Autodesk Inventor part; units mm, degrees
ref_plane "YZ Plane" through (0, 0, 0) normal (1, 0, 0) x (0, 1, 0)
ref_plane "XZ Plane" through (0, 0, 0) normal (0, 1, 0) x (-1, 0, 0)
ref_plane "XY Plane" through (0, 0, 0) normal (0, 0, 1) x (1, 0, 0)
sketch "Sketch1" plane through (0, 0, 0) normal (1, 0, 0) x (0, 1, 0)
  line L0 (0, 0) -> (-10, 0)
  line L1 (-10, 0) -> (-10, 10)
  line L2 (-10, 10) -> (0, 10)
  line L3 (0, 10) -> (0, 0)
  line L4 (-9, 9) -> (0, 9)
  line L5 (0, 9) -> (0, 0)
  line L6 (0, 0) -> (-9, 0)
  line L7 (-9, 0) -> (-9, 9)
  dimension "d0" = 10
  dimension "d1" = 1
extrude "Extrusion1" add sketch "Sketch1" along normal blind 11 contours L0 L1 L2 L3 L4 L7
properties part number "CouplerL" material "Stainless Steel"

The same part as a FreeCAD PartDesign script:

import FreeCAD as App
import Part
import Sketcher

V = App.Vector
Q = App.Units.Quantity


def add_polygon(sketch, points):
    """Adds a closed chain of lines whose ends are joined by coincident constraints."""
    first, n = sketch.GeometryCount, len(points)
    for a, b in zip(points, points[1:] + points[:1]):
        sketch.addGeometry(Part.LineSegment(App.Vector(*a, 0), App.Vector(*b, 0)), False)
    for i in range(n):
        sketch.addConstraint(Sketcher.Constraint("Coincident", first + i, 2, first + (i + 1) % n, 1))

doc = App.newDocument("Part")
params = doc.addObject("Spreadsheet::Sheet", "Params")
for row, (alias, value) in enumerate([
    ("sketch1_width", "1 mm"),
    ("sketch1_width2", "10 mm"),
    ("pad1_length", "11 mm"),
], start=1):
    params.set(f"A{row}", alias)
    params.set(f"B{row}", "=" + value)
    params.setAlias(f"B{row}", alias)

body = doc.addObject("PartDesign::Body", "Body")

sketch1 = body.newObject("Sketcher::SketchObject", "Sketch")
sketch1.AttachmentSupport = (doc.getObject("YZ_Plane"), [""])
sketch1.MapMode = "FlatFace"
add_polygon(sketch1, [(-10, 0), (-9, 0), (-9, 9), (0, 9), (0, 10), (-10, 10)])
sketch1.addConstraint([
    Sketcher.Constraint("Horizontal", 0),
    Sketcher.Constraint("Vertical", 1),
    Sketcher.Constraint("Horizontal", 2),
    Sketcher.Constraint("Vertical", 3),
    Sketcher.Constraint("Horizontal", 4),
    Sketcher.Constraint("Vertical", 5),
    Sketcher.Constraint("PointOnObject", 0, 2, -1),
    Sketcher.Constraint("PointOnObject", 2, 2, -2),
    Sketcher.Constraint("Equal", 2, 1),
    Sketcher.Constraint("Equal", 0, 3),
    Sketcher.Constraint("DistanceX", 0, 1, 0, 2, Q("1 mm")),
    Sketcher.Constraint("DistanceX", 4, 2, 4, 1, Q("10 mm")),
])
sketch1.setExpression("Constraints[16]", "Params.sketch1_width")
sketch1.setExpression("Constraints[17]", "Params.sketch1_width2")
pad1 = body.newObject("PartDesign::Pad", "Pad")
pad1.Profile = sketch1
pad1.setExpression("Length", "Params.pad1_length")

doc.recompute()
